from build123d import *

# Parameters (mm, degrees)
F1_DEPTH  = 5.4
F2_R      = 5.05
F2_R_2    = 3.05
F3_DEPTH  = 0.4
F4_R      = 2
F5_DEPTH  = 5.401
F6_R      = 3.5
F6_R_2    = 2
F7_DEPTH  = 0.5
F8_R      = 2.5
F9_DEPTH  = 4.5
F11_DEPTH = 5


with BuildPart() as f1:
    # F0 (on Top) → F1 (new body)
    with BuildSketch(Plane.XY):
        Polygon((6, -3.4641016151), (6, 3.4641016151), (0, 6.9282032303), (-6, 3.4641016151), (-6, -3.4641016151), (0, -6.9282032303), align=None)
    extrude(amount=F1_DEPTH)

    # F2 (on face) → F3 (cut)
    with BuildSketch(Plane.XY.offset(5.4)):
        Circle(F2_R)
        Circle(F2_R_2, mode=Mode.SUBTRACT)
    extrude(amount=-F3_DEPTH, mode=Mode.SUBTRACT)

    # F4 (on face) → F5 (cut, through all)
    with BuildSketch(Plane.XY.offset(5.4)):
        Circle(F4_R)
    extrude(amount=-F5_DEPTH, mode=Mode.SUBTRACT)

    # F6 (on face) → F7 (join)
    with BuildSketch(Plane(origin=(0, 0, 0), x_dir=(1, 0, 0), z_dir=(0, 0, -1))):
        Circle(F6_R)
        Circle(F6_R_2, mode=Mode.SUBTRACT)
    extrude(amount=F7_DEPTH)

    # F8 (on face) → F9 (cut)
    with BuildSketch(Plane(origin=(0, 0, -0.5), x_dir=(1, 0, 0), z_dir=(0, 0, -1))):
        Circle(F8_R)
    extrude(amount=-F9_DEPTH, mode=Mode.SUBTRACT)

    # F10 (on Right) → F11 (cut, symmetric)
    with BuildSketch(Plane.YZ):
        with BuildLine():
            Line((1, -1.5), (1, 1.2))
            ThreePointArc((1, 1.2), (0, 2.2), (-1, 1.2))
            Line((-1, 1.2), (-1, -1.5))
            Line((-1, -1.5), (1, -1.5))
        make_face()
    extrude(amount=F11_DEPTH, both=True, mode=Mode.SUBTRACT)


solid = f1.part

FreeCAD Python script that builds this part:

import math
import FreeCAD as App
import Part
import Sketcher
from FreeCAD import Vector
Q = App.Units.Quantity


def add_polygon(sketch, points):
    """Adds a closed chain of lines whose ends are joined by coincident constraints."""
    first, n = sketch.GeometryCount, len(points)
    for a, b in zip(points, points[1:] + points[:1]):
        sketch.addGeometry(Part.LineSegment(App.Vector(*a, 0), App.Vector(*b, 0)), False)
    for i in range(n):
        sketch.addConstraint(Sketcher.Constraint("Coincident", first + i, 2, first + (i + 1) % n, 1))

doc = App.newDocument("Part")
body = doc.addObject("PartDesign::Body", "Body")

# Sketch on XY plane
sketch1 = doc.addObject("Sketcher::SketchObject", "Sketch")
body.addObject(sketch1)
sketch1.AttachmentSupport = (doc.XY_Plane, [""])
sketch1.MapMode = "FlatFace"
add_polygon(sketch1, [(6, -3), (6, 3), (0, 7), (-6, 3), (-6, -3), (0, -7)])  # lines 0-5
sketch1.addConstraint([
    Sketcher.Constraint("Vertical", 0),
    Sketcher.Constraint("Vertical", 3),
    Sketcher.Constraint("Symmetric", 0, 2, 3, 2, -1, 1),
    Sketcher.Constraint("Symmetric", 1, 2, 4, 2, -1, 1),
    Sketcher.Constraint("PointOnObject", 1, 2, -2),
    Sketcher.Constraint("Parallel", 2, 5),
    Sketcher.Constraint("Horizontal", 0, 2, 2, 2),
    Sketcher.Constraint("Angle", 1, Q("150 deg")),
    Sketcher.Constraint("DistanceX", -1, 1, 0, 2, Q("6 mm")),
    Sketcher.Constraint("DistanceY", -1, 1, 0, 2, Q("3.464102 mm")),
])
pad1 = doc.addObject("PartDesign::Pad", "Pad")
body.addObject(pad1)
pad1.Profile = sketch1
pad1.Length = 5.4

# Sketch on XY plane
sketch2 = doc.addObject("Sketcher::SketchObject", "Sketch001")
body.addObject(sketch2)
sketch2.AttachmentSupport = (doc.XY_Plane, [""])
sketch2.MapMode = "FlatFace"
sketch2.AttachmentOffset = App.Placement(Vector(0, 0, 5.4), App.Rotation())
sketch2.addGeometry([
    Part.Circle(Vector(0, 0, 0), Vector(0, 0, 1), 5),
    Part.Circle(Vector(0, 0, 0), Vector(0, 0, 1), 3),
], False)
sketch2.addConstraint([
    Sketcher.Constraint("Coincident", 0, 3, -1, 1),
    Sketcher.Constraint("Coincident", 1, 3, -1, 1),
    Sketcher.Constraint("Diameter", 0, Q("10.1 mm")),
    Sketcher.Constraint("Diameter", 1, Q("6.1 mm")),
])
pocket1 = doc.addObject("PartDesign::Pocket", "Pocket")
body.addObject(pocket1)
pocket1.Profile = sketch2
pocket1.Length = 0.4

# Sketch on XY plane
sketch3 = doc.addObject("Sketcher::SketchObject", "Sketch002")
body.addObject(sketch3)
sketch3.AttachmentSupport = (doc.XY_Plane, [""])
sketch3.MapMode = "FlatFace"
sketch3.AttachmentOffset = App.Placement(Vector(0, 0, 5.4), App.Rotation())
sketch3.addGeometry(Part.Circle(Vector(0, 0, 0), Vector(0, 0, 1), 2), False)
sketch3.addConstraint([
    Sketcher.Constraint("Coincident", 0, 3, -1, 1),
    Sketcher.Constraint("Diameter", 0, Q("4 mm")),
])
pocket2 = doc.addObject("PartDesign::Pocket", "Pocket001")
body.addObject(pocket2)
pocket2.Profile = sketch3
pocket2.Type = "ThroughAll"

# Sketch on XY plane
sketch4 = doc.addObject("Sketcher::SketchObject", "Sketch003")
body.addObject(sketch4)
sketch4.AttachmentSupport = (doc.XY_Plane, [""])
sketch4.MapMode = "FlatFace"
sketch4.addGeometry([
    Part.Circle(Vector(0, 0, 0), Vector(0, 0, 1), 3.5),
    Part.Circle(Vector(0, 0, 0), Vector(0, 0, 1), 2),
], False)
sketch4.addConstraint([
    Sketcher.Constraint("Coincident", 0, 3, -1, 1),
    Sketcher.Constraint("Coincident", 1, 3, -1, 1),
    Sketcher.Constraint("Diameter", 0, Q("7 mm")),
    Sketcher.Constraint("Diameter", 1, Q("4 mm")),
])
pad2 = doc.addObject("PartDesign::Pad", "Pad001")
body.addObject(pad2)
pad2.Profile = sketch4
pad2.Length = 0.5
pad2.Reversed = True

# Sketch on XY plane
sketch5 = doc.addObject("Sketcher::SketchObject", "Sketch004")
body.addObject(sketch5)
sketch5.AttachmentSupport = (doc.XY_Plane, [""])
sketch5.MapMode = "FlatFace"
sketch5.AttachmentOffset = App.Placement(Vector(0, 0, -0.5), App.Rotation())
sketch5.addGeometry(Part.Circle(Vector(0, 0, 0), Vector(0, 0, 1), 2.5), False)
sketch5.addConstraint([
    Sketcher.Constraint("Coincident", 0, 3, -1, 1),
    Sketcher.Constraint("Diameter", 0, Q("5 mm")),
])
pocket3 = doc.addObject("PartDesign::Pocket", "Pocket002")
body.addObject(pocket3)
pocket3.Profile = sketch5
pocket3.Length = 4.5
pocket3.Reversed = True

# Sketch on YZ plane
sketch6 = doc.addObject("Sketcher::SketchObject", "Sketch005")
body.addObject(sketch6)
sketch6.AttachmentSupport = (doc.YZ_Plane, [""])
sketch6.MapMode = "FlatFace"
sketch6.addGeometry([
    Part.LineSegment(Vector(1, -1.5, 0), Vector(1, 1.2, 0)),
    Part.ArcOfCircle(Part.Circle(Vector(0, 1.2, 0), Vector(0, 0, 1), 1), math.radians(0), math.radians(180)),
    Part.LineSegment(Vector(-1, 1.2, 0), Vector(-1, -1.5, 0)),
    Part.LineSegment(Vector(-1, -1.5, 0), Vector(1, -1.5, 0)),
], False)
sketch6.addConstraint([
    Sketcher.Constraint("Tangent", 0, 2, 1, 1),
    Sketcher.Constraint("Tangent", 1, 2, 2, 1),
    Sketcher.Constraint("Coincident", 2, 2, 3, 1),
    Sketcher.Constraint("Coincident", 3, 2, 0, 1),
    Sketcher.Constraint("Vertical", 0),
    Sketcher.Constraint("Vertical", 2),
    Sketcher.Constraint("Horizontal", 3),
    Sketcher.Constraint("PointOnObject", 1, 3, -2),
    Sketcher.Constraint("Radius", 1, Q("1 mm")),
    Sketcher.Constraint("DistanceY", 0, 1, 0, 2, Q("2.7 mm")),
    Sketcher.Constraint("DistanceY", -1, 1, 1, 3, Q("1.2 mm")),
])
pocket4 = doc.addObject("PartDesign::Pocket", "Pocket003")
body.addObject(pocket4)
pocket4.Profile = sketch6
pocket4.Length = 10
pocket4.Midplane = True

doc.recompute()
